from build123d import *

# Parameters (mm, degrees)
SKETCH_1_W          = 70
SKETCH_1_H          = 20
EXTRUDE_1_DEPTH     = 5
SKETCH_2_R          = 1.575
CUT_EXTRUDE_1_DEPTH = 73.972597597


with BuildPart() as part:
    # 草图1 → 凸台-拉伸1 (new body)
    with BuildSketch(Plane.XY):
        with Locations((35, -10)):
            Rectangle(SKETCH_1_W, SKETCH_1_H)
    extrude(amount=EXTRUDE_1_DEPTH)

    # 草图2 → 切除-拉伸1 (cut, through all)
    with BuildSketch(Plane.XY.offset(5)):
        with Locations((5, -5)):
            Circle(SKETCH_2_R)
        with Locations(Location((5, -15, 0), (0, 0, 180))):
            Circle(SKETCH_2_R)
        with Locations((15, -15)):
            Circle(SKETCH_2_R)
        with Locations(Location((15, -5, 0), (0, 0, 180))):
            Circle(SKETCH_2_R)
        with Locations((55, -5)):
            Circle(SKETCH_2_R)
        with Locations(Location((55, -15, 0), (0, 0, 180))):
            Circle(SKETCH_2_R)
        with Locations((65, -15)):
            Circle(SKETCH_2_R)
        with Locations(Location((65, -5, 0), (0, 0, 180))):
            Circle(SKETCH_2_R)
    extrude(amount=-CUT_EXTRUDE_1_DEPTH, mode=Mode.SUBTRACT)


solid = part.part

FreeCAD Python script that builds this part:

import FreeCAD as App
import Part
import Sketcher
from FreeCAD import Vector
Q = App.Units.Quantity


def add_polygon(sketch, points):
    """Adds a closed chain of lines whose ends are joined by coincident constraints."""
    first, n = sketch.GeometryCount, len(points)
    for a, b in zip(points, points[1:] + points[:1]):
        sketch.addGeometry(Part.LineSegment(App.Vector(*a, 0), App.Vector(*b, 0)), False)
    for i in range(n):
        sketch.addConstraint(Sketcher.Constraint("Coincident", first + i, 2, first + (i + 1) % n, 1))

doc = App.newDocument("Part")
body = doc.addObject("PartDesign::Body", "Body")

# Sketch on XY plane
sketch1 = doc.addObject("Sketcher::SketchObject", "Sketch")
body.addObject(sketch1)
sketch1.AttachmentSupport = (doc.XY_Plane, [""])
sketch1.MapMode = "FlatFace"
add_polygon(sketch1, [(0, 0), (0, -20), (70, -20), (70, 0)])  # lines 0-3
sketch1.addConstraint([
    Sketcher.Constraint("Vertical", 0),
    Sketcher.Constraint("Horizontal", 1),
    Sketcher.Constraint("Vertical", 2),
    Sketcher.Constraint("Horizontal", 3),
    Sketcher.Constraint("Coincident", 3, 2, -1, 1),
    Sketcher.Constraint("DistanceX", 1, 1, 1, 2, Q("70 mm")),
    Sketcher.Constraint("DistanceY", 0, 2, 0, 1, Q("20 mm")),
])
pad1 = doc.addObject("PartDesign::Pad", "Pad")
body.addObject(pad1)
pad1.Profile = sketch1
pad1.Length = 5

# Sketch on XY plane
sketch2 = doc.addObject("Sketcher::SketchObject", "Sketch001")
body.addObject(sketch2)
sketch2.AttachmentSupport = (doc.XY_Plane, [""])
sketch2.MapMode = "FlatFace"
sketch2.AttachmentOffset = App.Placement(Vector(0, 0, 5), App.Rotation())
sketch2.addGeometry([
    Part.Circle(Vector(5, -5, 0), Vector(0, 0, 1), 1.6),  # 0
    Part.Circle(Vector(5, -15, 0), Vector(0, 0, 1), 1.6),  # 1
    Part.Circle(Vector(15, -15, 0), Vector(0, 0, 1), 1.6),  # 2
    Part.Circle(Vector(15, -5, 0), Vector(0, 0, 1), 1.6),  # 3
    Part.Circle(Vector(55, -5, 0), Vector(0, 0, 1), 1.6),  # 4
    Part.Circle(Vector(55, -15, 0), Vector(0, 0, 1), 1.6),  # 5
    Part.Circle(Vector(65, -15, 0), Vector(0, 0, 1), 1.6),  # 6
    Part.Circle(Vector(65, -5, 0), Vector(0, 0, 1), 1.6),  # 7
], False)
sketch2.addConstraint([
    Sketcher.Constraint("Equal", 0, 1),
    Sketcher.Constraint("Equal", 1, 2),
    Sketcher.Constraint("Equal", 2, 3),
    Sketcher.Constraint("Equal", 3, 4),
    Sketcher.Constraint("Equal", 4, 5),
    Sketcher.Constraint("Equal", 5, 6),
    Sketcher.Constraint("Equal", 6, 7),
    Sketcher.Constraint("Horizontal", 1, 3, 2, 3),
    Sketcher.Constraint("Horizontal", 0, 3, 3, 3),
    Sketcher.Constraint("Horizontal", 3, 3, 4, 3),
    Sketcher.Constraint("Horizontal", 2, 3, 5, 3),
    Sketcher.Constraint("Horizontal", 5, 3, 6, 3),
    Sketcher.Constraint("Horizontal", 4, 3, 7, 3),
    Sketcher.Constraint("Vertical", 0, 3, 1, 3),
    Sketcher.Constraint("Vertical", 2, 3, 3, 3),
    Sketcher.Constraint("Vertical", 4, 3, 5, 3),
    Sketcher.Constraint("Vertical", 6, 3, 7, 3),
    Sketcher.Constraint("Diameter", 0, Q("3.15 mm")),
    Sketcher.Constraint("DistanceX", -1, 1, 0, 3, Q("5 mm")),
    Sketcher.Constraint("DistanceY", 0, 3, -1, 1, Q("5 mm")),
    Sketcher.Constraint("DistanceY", 1, 3, -1, 1, Q("15 mm")),
    Sketcher.Constraint("DistanceX", -1, 1, 2, 3, Q("15 mm")),
    Sketcher.Constraint("DistanceX", -1, 1, 4, 3, Q("55 mm")),
    Sketcher.Constraint("DistanceX", -1, 1, 6, 3, Q("65 mm")),
])
pocket1 = doc.addObject("PartDesign::Pocket", "Pocket")
body.addObject(pocket1)
pocket1.Profile = sketch2
pocket1.Type = "ThroughAll"

doc.recompute()
